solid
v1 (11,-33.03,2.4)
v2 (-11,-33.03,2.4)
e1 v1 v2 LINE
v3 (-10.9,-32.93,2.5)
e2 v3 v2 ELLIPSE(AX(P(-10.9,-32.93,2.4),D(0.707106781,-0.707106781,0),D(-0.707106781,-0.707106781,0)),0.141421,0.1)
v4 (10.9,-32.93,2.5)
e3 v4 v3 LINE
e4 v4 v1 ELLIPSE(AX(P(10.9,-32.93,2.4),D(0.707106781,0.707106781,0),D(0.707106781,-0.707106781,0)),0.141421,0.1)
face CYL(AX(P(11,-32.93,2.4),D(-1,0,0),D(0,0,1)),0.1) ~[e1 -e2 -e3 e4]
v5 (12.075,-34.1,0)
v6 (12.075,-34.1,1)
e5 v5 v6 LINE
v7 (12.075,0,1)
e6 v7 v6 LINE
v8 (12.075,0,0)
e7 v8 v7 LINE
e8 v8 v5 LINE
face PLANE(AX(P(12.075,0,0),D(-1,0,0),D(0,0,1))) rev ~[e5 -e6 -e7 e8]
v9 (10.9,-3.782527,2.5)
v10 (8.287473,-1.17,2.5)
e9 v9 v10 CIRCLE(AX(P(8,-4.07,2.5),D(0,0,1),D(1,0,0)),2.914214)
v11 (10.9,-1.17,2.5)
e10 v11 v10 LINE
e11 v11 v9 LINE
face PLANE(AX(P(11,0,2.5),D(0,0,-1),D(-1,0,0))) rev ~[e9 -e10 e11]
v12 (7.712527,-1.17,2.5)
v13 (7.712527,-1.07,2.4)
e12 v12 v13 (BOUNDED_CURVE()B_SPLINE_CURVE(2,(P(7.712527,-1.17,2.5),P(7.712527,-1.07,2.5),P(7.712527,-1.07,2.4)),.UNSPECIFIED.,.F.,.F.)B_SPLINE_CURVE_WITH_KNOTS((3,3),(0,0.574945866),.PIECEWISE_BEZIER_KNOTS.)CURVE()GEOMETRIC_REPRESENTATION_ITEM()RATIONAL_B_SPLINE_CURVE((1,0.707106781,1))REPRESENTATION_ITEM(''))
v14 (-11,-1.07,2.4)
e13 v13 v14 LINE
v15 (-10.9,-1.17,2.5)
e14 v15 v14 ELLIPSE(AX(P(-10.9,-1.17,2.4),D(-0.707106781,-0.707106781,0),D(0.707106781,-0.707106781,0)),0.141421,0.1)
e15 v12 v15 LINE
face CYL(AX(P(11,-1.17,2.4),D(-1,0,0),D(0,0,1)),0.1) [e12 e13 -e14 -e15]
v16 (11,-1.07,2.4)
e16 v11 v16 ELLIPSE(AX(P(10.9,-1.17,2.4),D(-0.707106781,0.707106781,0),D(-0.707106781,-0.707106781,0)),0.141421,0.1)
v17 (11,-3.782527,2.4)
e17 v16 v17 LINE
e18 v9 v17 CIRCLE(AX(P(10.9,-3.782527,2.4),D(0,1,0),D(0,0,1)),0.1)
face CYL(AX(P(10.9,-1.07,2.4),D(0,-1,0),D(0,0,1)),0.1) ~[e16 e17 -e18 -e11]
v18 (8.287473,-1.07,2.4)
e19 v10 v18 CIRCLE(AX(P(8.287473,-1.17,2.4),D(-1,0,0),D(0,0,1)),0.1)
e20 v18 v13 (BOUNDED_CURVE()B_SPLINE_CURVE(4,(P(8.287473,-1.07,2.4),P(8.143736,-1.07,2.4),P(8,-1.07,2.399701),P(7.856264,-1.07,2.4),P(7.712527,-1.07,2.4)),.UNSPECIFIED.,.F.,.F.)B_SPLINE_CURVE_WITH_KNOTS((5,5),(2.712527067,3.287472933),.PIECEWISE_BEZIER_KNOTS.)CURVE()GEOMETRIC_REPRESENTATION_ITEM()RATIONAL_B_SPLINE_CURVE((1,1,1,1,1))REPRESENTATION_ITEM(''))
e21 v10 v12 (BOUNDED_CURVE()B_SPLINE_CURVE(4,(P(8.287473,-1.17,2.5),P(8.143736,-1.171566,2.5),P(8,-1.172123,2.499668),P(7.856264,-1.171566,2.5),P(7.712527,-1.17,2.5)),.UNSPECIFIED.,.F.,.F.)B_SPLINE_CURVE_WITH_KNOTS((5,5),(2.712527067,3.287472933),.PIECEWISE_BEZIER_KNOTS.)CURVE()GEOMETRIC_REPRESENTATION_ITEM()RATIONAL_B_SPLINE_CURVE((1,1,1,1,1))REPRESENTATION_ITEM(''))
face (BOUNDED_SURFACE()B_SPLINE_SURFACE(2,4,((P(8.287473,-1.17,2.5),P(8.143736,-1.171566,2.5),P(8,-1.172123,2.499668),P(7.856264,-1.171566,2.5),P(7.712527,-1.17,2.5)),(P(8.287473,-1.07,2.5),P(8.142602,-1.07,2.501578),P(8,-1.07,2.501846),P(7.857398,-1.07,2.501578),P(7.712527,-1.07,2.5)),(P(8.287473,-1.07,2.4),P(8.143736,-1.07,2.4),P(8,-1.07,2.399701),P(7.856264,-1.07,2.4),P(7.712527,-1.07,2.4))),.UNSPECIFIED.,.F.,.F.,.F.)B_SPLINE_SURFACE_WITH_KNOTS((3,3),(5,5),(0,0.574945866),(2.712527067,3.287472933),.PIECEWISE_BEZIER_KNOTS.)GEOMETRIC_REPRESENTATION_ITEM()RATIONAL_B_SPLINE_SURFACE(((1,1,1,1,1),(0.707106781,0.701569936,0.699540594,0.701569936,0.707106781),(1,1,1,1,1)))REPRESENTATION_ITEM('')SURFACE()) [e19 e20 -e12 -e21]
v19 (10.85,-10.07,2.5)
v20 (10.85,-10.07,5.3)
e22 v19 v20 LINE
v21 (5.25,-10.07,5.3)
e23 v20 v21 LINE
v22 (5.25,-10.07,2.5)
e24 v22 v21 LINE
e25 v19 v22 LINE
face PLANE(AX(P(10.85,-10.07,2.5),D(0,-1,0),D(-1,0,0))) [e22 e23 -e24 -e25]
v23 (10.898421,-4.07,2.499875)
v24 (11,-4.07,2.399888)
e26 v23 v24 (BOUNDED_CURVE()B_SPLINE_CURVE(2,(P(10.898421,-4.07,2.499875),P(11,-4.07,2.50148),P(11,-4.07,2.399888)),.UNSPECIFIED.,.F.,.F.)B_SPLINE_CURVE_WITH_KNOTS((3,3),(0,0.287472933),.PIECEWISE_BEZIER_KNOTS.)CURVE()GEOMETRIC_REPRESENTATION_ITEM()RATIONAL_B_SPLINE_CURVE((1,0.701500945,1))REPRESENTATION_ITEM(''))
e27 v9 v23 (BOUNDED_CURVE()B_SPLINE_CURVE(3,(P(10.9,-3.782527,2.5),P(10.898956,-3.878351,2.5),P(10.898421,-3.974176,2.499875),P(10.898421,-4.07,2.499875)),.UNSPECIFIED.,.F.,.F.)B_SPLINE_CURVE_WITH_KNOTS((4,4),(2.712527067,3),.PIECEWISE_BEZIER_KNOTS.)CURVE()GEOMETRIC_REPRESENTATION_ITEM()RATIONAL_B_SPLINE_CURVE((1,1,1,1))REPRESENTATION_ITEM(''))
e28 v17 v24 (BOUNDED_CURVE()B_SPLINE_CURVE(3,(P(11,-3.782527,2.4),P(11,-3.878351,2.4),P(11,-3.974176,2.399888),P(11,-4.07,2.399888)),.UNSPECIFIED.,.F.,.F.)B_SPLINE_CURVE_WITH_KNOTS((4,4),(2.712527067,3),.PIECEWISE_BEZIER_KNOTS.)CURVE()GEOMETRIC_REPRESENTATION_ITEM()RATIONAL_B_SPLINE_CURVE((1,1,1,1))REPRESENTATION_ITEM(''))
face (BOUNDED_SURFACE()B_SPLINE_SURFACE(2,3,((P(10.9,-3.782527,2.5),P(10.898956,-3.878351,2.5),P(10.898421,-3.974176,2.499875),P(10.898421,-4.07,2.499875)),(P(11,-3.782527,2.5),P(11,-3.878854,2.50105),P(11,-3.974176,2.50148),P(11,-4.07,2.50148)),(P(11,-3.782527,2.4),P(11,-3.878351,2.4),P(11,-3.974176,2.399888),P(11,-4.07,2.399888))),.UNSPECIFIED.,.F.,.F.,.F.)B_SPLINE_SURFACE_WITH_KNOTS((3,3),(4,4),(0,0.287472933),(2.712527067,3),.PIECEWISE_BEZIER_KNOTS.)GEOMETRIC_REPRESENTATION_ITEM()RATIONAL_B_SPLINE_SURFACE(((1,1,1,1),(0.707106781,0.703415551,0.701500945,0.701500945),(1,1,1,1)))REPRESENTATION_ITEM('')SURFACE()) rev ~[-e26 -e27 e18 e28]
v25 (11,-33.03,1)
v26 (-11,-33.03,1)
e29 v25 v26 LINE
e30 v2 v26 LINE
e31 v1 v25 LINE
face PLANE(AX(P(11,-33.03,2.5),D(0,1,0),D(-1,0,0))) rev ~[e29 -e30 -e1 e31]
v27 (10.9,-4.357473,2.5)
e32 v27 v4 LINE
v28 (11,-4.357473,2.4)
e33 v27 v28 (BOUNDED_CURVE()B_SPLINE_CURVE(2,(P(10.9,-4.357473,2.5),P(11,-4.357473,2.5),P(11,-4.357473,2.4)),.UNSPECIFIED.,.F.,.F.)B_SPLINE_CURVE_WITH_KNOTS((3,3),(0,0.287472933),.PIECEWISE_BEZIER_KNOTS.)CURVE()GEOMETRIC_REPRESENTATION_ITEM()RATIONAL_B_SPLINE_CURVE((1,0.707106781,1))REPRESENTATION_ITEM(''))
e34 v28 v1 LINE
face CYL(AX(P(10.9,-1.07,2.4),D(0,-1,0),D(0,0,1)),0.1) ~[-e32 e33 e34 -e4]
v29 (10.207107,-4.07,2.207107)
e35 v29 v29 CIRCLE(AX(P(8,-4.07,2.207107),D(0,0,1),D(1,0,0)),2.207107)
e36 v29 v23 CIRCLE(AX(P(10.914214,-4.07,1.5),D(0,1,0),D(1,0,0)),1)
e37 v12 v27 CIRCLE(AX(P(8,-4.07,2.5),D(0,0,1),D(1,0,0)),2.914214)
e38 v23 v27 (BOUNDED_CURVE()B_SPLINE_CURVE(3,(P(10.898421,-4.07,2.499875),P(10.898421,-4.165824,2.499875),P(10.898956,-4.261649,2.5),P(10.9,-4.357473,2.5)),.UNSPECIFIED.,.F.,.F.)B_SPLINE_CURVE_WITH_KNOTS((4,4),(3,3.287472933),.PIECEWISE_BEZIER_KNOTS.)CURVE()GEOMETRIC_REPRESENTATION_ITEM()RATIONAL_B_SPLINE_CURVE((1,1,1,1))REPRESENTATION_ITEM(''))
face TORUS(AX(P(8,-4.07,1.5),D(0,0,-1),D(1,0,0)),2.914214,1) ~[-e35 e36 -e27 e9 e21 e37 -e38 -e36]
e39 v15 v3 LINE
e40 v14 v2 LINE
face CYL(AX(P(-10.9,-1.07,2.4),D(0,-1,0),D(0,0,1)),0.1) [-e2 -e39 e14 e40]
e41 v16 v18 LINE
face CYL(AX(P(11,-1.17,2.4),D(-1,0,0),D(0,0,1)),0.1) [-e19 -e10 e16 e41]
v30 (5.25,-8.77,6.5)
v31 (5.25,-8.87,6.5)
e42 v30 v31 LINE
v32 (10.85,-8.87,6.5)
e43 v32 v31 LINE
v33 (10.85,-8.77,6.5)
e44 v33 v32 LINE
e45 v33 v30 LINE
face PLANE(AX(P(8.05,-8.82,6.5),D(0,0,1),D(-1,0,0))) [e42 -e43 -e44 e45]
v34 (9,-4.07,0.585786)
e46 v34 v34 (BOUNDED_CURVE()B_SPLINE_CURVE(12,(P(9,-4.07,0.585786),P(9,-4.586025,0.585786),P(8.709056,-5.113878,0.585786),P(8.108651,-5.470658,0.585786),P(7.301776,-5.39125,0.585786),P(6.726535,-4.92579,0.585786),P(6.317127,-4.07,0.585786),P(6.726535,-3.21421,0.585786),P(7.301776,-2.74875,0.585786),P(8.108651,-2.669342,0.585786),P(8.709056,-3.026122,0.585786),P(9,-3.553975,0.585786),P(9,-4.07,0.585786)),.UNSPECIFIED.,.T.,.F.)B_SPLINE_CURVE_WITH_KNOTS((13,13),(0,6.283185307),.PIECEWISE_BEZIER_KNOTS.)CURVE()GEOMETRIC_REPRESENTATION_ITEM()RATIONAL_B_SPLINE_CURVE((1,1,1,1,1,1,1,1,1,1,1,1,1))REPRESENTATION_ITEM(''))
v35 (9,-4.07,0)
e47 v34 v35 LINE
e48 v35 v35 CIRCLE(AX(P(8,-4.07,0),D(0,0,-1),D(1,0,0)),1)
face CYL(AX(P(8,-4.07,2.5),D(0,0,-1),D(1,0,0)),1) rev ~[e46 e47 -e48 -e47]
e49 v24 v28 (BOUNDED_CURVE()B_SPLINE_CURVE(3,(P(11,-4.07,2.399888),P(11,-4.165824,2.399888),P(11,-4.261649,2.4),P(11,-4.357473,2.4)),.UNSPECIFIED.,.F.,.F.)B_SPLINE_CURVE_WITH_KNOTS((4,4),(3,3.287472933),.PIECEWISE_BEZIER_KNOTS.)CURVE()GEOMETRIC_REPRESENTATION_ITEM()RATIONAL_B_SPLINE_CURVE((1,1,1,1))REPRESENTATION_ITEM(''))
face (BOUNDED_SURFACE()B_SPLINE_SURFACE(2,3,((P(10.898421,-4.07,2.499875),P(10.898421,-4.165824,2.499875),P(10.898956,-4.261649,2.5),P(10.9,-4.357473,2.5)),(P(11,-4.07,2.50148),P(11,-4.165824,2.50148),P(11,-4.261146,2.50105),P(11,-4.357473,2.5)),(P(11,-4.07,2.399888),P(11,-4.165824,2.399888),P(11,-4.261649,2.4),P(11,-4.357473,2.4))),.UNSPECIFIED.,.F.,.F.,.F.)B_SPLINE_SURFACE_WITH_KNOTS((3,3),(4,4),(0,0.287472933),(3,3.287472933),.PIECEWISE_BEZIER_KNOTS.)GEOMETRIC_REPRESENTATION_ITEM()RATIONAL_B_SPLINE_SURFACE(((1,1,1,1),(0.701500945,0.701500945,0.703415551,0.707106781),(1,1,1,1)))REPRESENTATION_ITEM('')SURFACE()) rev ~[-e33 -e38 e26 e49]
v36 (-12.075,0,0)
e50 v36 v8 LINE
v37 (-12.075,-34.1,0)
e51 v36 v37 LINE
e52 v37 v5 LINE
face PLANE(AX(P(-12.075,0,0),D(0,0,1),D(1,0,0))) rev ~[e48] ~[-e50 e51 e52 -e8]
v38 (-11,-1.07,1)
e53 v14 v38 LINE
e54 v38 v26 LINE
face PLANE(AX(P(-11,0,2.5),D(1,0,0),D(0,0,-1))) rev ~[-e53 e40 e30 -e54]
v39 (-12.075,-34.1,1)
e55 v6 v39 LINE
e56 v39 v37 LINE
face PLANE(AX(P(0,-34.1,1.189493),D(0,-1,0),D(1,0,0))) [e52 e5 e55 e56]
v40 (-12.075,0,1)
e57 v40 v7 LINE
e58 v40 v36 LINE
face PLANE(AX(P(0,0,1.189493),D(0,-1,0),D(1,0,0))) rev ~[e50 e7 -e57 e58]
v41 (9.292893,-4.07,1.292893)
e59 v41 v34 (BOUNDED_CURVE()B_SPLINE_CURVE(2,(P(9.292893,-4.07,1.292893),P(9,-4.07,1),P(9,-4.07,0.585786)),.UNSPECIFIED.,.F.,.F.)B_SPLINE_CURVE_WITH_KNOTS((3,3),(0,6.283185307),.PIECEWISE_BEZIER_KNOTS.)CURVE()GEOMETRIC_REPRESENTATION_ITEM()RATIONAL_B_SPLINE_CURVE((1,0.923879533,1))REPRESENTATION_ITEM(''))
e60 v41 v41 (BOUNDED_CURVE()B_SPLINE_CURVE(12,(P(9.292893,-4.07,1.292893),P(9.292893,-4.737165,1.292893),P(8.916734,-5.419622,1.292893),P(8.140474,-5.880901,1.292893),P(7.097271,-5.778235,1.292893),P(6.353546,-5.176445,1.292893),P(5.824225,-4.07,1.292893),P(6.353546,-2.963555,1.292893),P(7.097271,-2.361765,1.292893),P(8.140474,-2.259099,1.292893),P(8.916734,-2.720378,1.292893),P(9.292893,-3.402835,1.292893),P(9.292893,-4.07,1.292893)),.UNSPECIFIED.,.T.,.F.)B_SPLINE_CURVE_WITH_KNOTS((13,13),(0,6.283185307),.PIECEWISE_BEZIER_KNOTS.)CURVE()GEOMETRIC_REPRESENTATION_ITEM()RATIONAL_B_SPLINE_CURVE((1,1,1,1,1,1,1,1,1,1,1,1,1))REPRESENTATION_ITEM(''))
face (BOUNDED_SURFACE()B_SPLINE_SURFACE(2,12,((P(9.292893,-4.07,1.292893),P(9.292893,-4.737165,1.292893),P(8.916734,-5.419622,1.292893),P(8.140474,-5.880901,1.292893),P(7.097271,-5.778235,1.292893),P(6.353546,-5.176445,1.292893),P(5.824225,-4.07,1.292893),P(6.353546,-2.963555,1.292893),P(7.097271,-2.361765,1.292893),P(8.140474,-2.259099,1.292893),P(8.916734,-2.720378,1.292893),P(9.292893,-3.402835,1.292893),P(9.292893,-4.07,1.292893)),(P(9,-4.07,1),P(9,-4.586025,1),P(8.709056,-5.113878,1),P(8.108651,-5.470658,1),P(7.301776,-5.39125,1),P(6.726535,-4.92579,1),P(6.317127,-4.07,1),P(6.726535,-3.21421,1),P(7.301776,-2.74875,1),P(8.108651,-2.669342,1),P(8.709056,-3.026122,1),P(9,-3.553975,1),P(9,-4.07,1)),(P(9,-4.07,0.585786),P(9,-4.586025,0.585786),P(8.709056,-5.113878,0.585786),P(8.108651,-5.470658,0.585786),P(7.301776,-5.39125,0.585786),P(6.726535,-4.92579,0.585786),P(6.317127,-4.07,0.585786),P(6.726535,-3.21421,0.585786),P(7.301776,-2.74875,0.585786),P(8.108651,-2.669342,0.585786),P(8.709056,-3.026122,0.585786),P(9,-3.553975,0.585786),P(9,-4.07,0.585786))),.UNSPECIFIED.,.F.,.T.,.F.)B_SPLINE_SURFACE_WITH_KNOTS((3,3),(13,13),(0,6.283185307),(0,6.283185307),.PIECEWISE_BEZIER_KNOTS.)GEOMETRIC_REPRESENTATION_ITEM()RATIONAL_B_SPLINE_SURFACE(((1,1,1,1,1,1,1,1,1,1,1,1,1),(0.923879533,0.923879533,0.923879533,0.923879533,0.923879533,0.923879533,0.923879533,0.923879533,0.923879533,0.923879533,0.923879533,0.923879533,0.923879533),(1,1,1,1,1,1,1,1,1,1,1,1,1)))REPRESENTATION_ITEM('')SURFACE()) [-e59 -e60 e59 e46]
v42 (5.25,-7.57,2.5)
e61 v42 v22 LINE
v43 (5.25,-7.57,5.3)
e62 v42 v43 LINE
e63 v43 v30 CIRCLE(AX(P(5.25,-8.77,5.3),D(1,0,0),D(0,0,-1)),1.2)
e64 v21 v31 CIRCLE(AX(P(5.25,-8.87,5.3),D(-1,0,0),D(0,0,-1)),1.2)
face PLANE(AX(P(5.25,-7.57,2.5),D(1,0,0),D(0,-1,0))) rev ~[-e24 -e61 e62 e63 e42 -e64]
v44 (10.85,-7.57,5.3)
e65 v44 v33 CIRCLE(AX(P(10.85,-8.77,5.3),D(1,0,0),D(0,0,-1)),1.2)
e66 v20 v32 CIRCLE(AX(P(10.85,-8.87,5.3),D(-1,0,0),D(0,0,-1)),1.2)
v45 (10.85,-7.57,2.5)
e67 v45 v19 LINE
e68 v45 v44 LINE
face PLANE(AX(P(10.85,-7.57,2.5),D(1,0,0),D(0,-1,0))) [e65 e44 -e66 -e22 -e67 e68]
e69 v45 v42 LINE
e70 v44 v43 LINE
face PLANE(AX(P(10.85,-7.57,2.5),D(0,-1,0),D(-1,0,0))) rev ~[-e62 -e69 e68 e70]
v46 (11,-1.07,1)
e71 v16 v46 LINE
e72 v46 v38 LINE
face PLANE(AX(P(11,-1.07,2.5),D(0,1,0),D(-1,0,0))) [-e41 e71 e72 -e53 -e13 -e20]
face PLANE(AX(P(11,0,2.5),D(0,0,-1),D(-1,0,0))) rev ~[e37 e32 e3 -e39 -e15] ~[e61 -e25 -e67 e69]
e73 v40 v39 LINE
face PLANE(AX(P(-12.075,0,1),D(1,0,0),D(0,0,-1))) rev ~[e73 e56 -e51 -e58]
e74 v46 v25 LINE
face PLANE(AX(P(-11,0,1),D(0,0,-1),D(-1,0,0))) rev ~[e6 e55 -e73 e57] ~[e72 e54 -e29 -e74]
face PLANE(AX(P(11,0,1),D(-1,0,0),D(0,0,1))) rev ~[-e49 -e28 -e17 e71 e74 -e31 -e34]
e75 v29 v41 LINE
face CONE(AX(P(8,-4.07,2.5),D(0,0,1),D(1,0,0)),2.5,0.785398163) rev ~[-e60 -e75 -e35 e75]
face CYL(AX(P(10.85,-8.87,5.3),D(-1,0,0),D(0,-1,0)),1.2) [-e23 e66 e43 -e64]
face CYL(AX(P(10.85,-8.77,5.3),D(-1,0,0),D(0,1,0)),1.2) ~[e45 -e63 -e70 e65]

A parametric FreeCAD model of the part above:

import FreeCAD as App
import Part
import Sketcher
from FreeCAD import Vector


def edges_at(feature, points):
    """Names of the edges that pass closest to the given points."""
    edges = feature.Shape.Edges
    near = lambda p: min(range(len(edges)), key=lambda i: edges[i].distToShape(Part.Vertex(*p))[0])
    return sorted({f"Edge{near(p) + 1}" for p in points})


def add_polygon(sketch, points):
    """Adds a closed chain of lines whose ends are joined by coincident constraints."""
    first, n = sketch.GeometryCount, len(points)
    for a, b in zip(points, points[1:] + points[:1]):
        sketch.addGeometry(Part.LineSegment(App.Vector(*a, 0), App.Vector(*b, 0)), False)
    for i in range(n):
        sketch.addConstraint(Sketcher.Constraint("Coincident", first + i, 2, first + (i + 1) % n, 1))

doc = App.newDocument("Part")
body = doc.addObject("PartDesign::Body", "Body")

# Sketch on XZ plane
sketch1 = body.newObject("Sketcher::SketchObject", "Sketch")
sketch1.AttachmentSupport = (doc.getObject("XZ_Plane"), [""])
sketch1.MapMode = "FlatFace"
add_polygon(sketch1, [(-12.075, 0), (12.075, 0), (12.075, 1), (11, 1), (11, 2.5), (-11, 2.5), (-11, 1), (-12.075, 1)])  # lines 0-7
sketch1.addConstraint(Sketcher.Constraint("Horizontal", 0))
sketch1.addConstraint(Sketcher.Constraint("Vertical", 1))
sketch1.addConstraint(Sketcher.Constraint("Horizontal", 2))
sketch1.addConstraint(Sketcher.Constraint("Vertical", 3))
sketch1.addConstraint(Sketcher.Constraint("Horizontal", 4))
sketch1.addConstraint(Sketcher.Constraint("Vertical", 5))
sketch1.addConstraint(Sketcher.Constraint("Horizontal", 6))
sketch1.addConstraint(Sketcher.Constraint("Vertical", 7))
sketch1.addConstraint(Sketcher.Constraint("Symmetric", 0, 2, 7, 2, -1, 1))
sketch1.addConstraint(Sketcher.Constraint("Symmetric", 2, 2, 5, 2, -2))
sketch1.addConstraint(Sketcher.Constraint("DistanceX", 4, 2, 4, 1, 22.0))
sketch1.addConstraint(Sketcher.Constraint("DistanceY", 1, 1, 1, 2, 1.0))
sketch1.addConstraint(Sketcher.Constraint("DistanceY", 3, 1, 3, 2, 1.5))
sketch1.addConstraint(Sketcher.Constraint("DistanceX", 0, 1, 0, 2, 24.15))
pad1 = body.newObject("PartDesign::Pad", "Pad")
pad1.Profile = sketch1
pad1.Length = 34.1

# Sketch on XY plane
sketch2 = body.newObject("Sketcher::SketchObject", "Sketch001")
sketch2.AttachmentSupport = (doc.getObject("XY_Plane"), [""])
sketch2.MapMode = "FlatFace"
sketch2.AttachmentOffset = App.Placement(Vector(0, 0, 2.5), App.Rotation())
add_polygon(sketch2, [(11, -34.1), (11, -33.03), (-11, -33.03), (-11, -34.1)])  # lines 0-3
add_polygon(sketch2, [(11, -1.07), (11, 0), (-11, 0), (-11, -1.07)])  # lines 4-7
sketch2.addConstraint(Sketcher.Constraint("Vertical", 0))
sketch2.addConstraint(Sketcher.Constraint("Horizontal", 1))
sketch2.addConstraint(Sketcher.Constraint("Vertical", 2))
sketch2.addConstraint(Sketcher.Constraint("Horizontal", 3))
sketch2.addConstraint(Sketcher.Constraint("Vertical", 4))
sketch2.addConstraint(Sketcher.Constraint("Horizontal", 5))
sketch2.addConstraint(Sketcher.Constraint("Vertical", 6))
sketch2.addConstraint(Sketcher.Constraint("Horizontal", 7))
sketch2.addConstraint(Sketcher.Constraint("Symmetric", 4, 2, 5, 2, -1, 1))
sketch2.addConstraint(Sketcher.Constraint("Vertical", 3, 2, 4, 2))
sketch2.addConstraint(Sketcher.Constraint("Vertical", 2, 2, 5, 2))
sketch2.addConstraint(Sketcher.Constraint("Equal", 2, 4))
sketch2.addConstraint(Sketcher.Constraint("DistanceX", 1, 2, 1, 1, 22.0))
sketch2.addConstraint(Sketcher.Constraint("DistanceY", 0, 1, 0, 2, 1.07))
sketch2.addConstraint(Sketcher.Constraint("DistanceY", 2, 2, -1, 1, 34.1))
pocket1 = body.newObject("PartDesign::Pocket", "Pocket")
pocket1.Profile = sketch2
pocket1.Length = 1.5

# Sketch on XY plane
sketch3 = body.newObject("Sketcher::SketchObject", "Sketch002")
sketch3.AttachmentSupport = (doc.getObject("XY_Plane"), [""])
sketch3.MapMode = "FlatFace"
sketch3.AttachmentOffset = App.Placement(Vector(0, 0, 2.5), App.Rotation())
sketch3.addGeometry(Part.Circle(Vector(8, -4.07, 0), Vector(0, 0, 1), 1), False)
sketch3.addConstraint(Sketcher.Constraint("Diameter", 0, 2.0))
sketch3.addConstraint(Sketcher.Constraint("DistanceX", -1, 1, 0, 3, 8.0))
sketch3.addConstraint(Sketcher.Constraint("DistanceY", 0, 3, -1, 1, 4.07))
doc.recompute()
hole = body.newObject("PartDesign::Hole", "Hole")
hole.Profile = sketch3
hole.ThreadType = "None"
hole.Diameter = 2
hole.DepthType = "Dimension"
hole.Depth = 25
hole.DrillPoint = "Flat"
hole.HoleCutType = "Countersink"
hole.HoleCutDiameter = 5
hole.HoleCutCountersinkAngle = 90
doc.recompute()

fillet = body.newObject("PartDesign::Fillet", "Fillet")
fillet.Base = (hole, edges_at(hole, [(5.5, -4.07, 2.5)]))
fillet.Radius = 1

# Sketch on XY plane
sketch4 = body.newObject("Sketcher::SketchObject", "Sketch003")
sketch4.AttachmentSupport = (doc.getObject("XY_Plane"), [""])
sketch4.MapMode = "FlatFace"
sketch4.AttachmentOffset = App.Placement(Vector(0, 0, 2.5), App.Rotation())
add_polygon(sketch4, [(10.85, -10.07), (10.85, -7.57), (5.25, -7.57), (5.25, -10.07)])  # lines 0-3
sketch4.addConstraint(Sketcher.Constraint("Vertical", 0))
sketch4.addConstraint(Sketcher.Constraint("Horizontal", 1))
sketch4.addConstraint(Sketcher.Constraint("Vertical", 2))
sketch4.addConstraint(Sketcher.Constraint("Horizontal", 3))
sketch4.addConstraint(Sketcher.Constraint("DistanceX", 1, 2, 1, 1, 5.6))
sketch4.addConstraint(Sketcher.Constraint("DistanceY", 0, 1, 0, 2, 2.5))
sketch4.addConstraint(Sketcher.Constraint("DistanceX", -1, 1, 0, 2, 10.85))
sketch4.addConstraint(Sketcher.Constraint("DistanceY", 0, 2, -1, 1, 7.57))
pad2 = body.newObject("PartDesign::Pad", "Pad001")
pad2.Profile = sketch4
pad2.Length = 4
doc.recompute()

fillet2 = body.newObject("PartDesign::Fillet", "Fillet001")
fillet2.Base = (pad2, edges_at(pad2, [(8.05, -7.57, 6.5), (8.05, -10.07, 6.5)]))
fillet2.Radius = 1.2
doc.recompute()

fillet3 = body.newObject("PartDesign::Fillet", "Fillet002")
fillet3.Base = (fillet2, edges_at(fillet2, [
    (11, -17.05, 2.5),
    (0, -33.03, 2.5),
    (-11, -17.05, 2.5),
    (0, -1.07, 2.5),
]))
fillet3.Radius = 0.1
doc.recompute()

fillet4 = body.newObject("PartDesign::Fillet", "Fillet003")
fillet4.Base = (fillet3, edges_at(fillet3, [(7, -4.07, 1)]))
fillet4.Radius = 1

doc.recompute()
